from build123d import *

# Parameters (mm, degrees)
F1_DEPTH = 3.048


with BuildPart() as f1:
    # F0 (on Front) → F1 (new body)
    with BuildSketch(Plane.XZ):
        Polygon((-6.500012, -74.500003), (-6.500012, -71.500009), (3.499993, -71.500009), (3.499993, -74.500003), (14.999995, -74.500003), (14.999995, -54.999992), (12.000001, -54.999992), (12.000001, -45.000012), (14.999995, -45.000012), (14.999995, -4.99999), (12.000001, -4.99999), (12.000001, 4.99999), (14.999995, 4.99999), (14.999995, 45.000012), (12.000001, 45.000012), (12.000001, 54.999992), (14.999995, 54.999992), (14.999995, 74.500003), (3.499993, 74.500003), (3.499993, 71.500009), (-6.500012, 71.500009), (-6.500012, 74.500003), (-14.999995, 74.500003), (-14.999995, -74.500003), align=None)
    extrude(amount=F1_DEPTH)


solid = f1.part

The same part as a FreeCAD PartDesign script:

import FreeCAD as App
import Part
import Sketcher
from FreeCAD import Vector
Q = App.Units.Quantity


def add_polygon(sketch, points):
    """Adds a closed chain of lines whose ends are joined by coincident constraints."""
    first, n = sketch.GeometryCount, len(points)
    for a, b in zip(points, points[1:] + points[:1]):
        sketch.addGeometry(Part.LineSegment(App.Vector(*a, 0), App.Vector(*b, 0)), False)
    for i in range(n):
        sketch.addConstraint(Sketcher.Constraint("Coincident", first + i, 2, first + (i + 1) % n, 1))

doc = App.newDocument("Part")
body = doc.addObject("PartDesign::Body", "Body")

# Sketch on XZ plane
sketch1 = body.newObject("Sketcher::SketchObject", "Sketch")
sketch1.AttachmentSupport = (doc.getObject("XZ_Plane"), [""])
sketch1.MapMode = "FlatFace"
add_polygon(sketch1, [(-6.5, -74.5), (-6.5, -71.5), (3.5, -71.5), (3.5, -74.5), (15, -74.5), (15, -55), (12, -55), (12, -45), (15, -45), (15, -5), (12, -5), (12, 5), (15, 5), (15, 45), (12, 45), (12, 55), (15, 55), (15, 74.5), (3.5, 74.5), (3.5, 71.5), (-6.5, 71.5), (-6.5, 74.5), (-15, 74.5), (-15, -74.5)])  # lines 0-23
sketch1.addConstraint(Sketcher.Constraint("Vertical", 0))
sketch1.addConstraint(Sketcher.Constraint("Horizontal", 1))
sketch1.addConstraint(Sketcher.Constraint("Vertical", 2))
sketch1.addConstraint(Sketcher.Constraint("Horizontal", 3))
sketch1.addConstraint(Sketcher.Constraint("Vertical", 4))
sketch1.addConstraint(Sketcher.Constraint("Horizontal", 5))
sketch1.addConstraint(Sketcher.Constraint("Vertical", 6))
sketch1.addConstraint(Sketcher.Constraint("Horizontal", 7))
sketch1.addConstraint(Sketcher.Constraint("Vertical", 8))
sketch1.addConstraint(Sketcher.Constraint("Horizontal", 9))
sketch1.addConstraint(Sketcher.Constraint("Vertical", 10))
sketch1.addConstraint(Sketcher.Constraint("Horizontal", 11))
sketch1.addConstraint(Sketcher.Constraint("Vertical", 12))
sketch1.addConstraint(Sketcher.Constraint("Horizontal", 13))
sketch1.addConstraint(Sketcher.Constraint("Vertical", 14))
sketch1.addConstraint(Sketcher.Constraint("Horizontal", 15))
sketch1.addConstraint(Sketcher.Constraint("Vertical", 16))
sketch1.addConstraint(Sketcher.Constraint("Horizontal", 17))
sketch1.addConstraint(Sketcher.Constraint("Vertical", 18))
sketch1.addConstraint(Sketcher.Constraint("Horizontal", 19))
sketch1.addConstraint(Sketcher.Constraint("Vertical", 20))
sketch1.addConstraint(Sketcher.Constraint("Horizontal", 21))
sketch1.addConstraint(Sketcher.Constraint("Vertical", 22))
sketch1.addConstraint(Sketcher.Constraint("Horizontal", 23))
sketch1.addConstraint(Sketcher.Constraint("Symmetric", 3, 2, 21, 2, -1, 1))
sketch1.addConstraint(Sketcher.Constraint("Symmetric", 16, 2, 22, 2, -1, 1))
sketch1.addConstraint(Sketcher.Constraint("Symmetric", 8, 2, 11, 2, -1))
sketch1.addConstraint(Sketcher.Constraint("Symmetric", 6, 2, 13, 2, -1))
sketch1.addConstraint(Sketcher.Constraint("Symmetric", 2, 2, 17, 2, -1))
sketch1.addConstraint(Sketcher.Constraint("Symmetric", 0, 2, 19, 2, -1))
sketch1.addConstraint(Sketcher.Constraint("Vertical", 4, 2, 7, 2))
sketch1.addConstraint(Sketcher.Constraint("Vertical", 6, 2, 9, 2))
sketch1.addConstraint(Sketcher.Constraint("Equal", 15, 0))
sketch1.addConstraint(Sketcher.Constraint("Equal", 6, 10))
sketch1.addConstraint(Sketcher.Constraint("Equal", 10, 14))
sketch1.addConstraint(Sketcher.Constraint("DistanceY", 6, 1, 6, 2, Q("0.3937 in")))
sketch1.addConstraint(Sketcher.Constraint("DistanceY", 4, 1, 4, 2, Q("19.500011 mm")))
sketch1.addConstraint(Sketcher.Constraint("DistanceX", -1, 1, 5, 2, Q("12.000001 mm")))
sketch1.addConstraint(Sketcher.Constraint("DistanceY", 4, 2, 8, 2, Q("50.000002 mm")))
sketch1.addConstraint(Sketcher.Constraint("DistanceX", 1, 1, 1, 2, Q("10.000005 mm")))
sketch1.addConstraint(Sketcher.Constraint("DistanceX", 3, 1, 3, 2, Q("11.500002 mm")))
sketch1.addConstraint(Sketcher.Constraint("DistanceX", 5, 2, 5, 1, Q("2.999994 mm")))
pad1 = body.newObject("PartDesign::Pad", "Pad")
pad1.Profile = sketch1
pad1.Length = Q("0.12 in")

doc.recompute()
